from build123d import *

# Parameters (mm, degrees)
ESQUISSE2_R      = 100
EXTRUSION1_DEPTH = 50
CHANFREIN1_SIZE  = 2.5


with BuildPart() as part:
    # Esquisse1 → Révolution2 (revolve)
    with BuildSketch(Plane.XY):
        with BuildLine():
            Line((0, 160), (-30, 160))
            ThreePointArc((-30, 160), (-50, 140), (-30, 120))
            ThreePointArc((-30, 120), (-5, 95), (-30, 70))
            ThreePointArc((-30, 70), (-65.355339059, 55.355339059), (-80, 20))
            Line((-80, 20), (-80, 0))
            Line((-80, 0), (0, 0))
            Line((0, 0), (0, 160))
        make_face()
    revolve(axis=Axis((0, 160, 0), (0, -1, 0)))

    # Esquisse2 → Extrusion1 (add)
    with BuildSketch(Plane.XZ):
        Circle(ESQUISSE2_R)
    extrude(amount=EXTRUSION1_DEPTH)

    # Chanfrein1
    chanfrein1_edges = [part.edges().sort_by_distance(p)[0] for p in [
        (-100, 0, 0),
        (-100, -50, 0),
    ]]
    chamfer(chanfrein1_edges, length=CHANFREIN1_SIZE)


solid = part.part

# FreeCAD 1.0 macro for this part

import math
import FreeCAD as App
import Part
import Sketcher
from FreeCAD import Vector
Q = App.Units.Quantity


def edges_at(feature, points):
    """Names of the edges that pass closest to the given points."""
    edges = feature.Shape.Edges
    near = lambda p: min(range(len(edges)), key=lambda i: edges[i].distToShape(Part.Vertex(*p))[0])
    return sorted({f"Edge{near(p) + 1}" for p in points})

doc = App.newDocument("Part")
body = doc.addObject("PartDesign::Body", "Body")

sketch1 = body.newObject("Sketcher::SketchObject", "Sketch")
sketch1.AttachmentSupport = (doc.getObject("XY_Plane"), [""])
sketch1.MapMode = "FlatFace"
sketch1.addGeometry([
    Part.LineSegment(Vector(0, 160, 0), Vector(-30, 160, 0)),
    Part.ArcOfCircle(Part.Circle(Vector(-30, 140, 0), Vector(0, 0, 1), 20), math.radians(90), math.radians(270)),
    Part.ArcOfCircle(Part.Circle(Vector(-30, 95, 0), Vector(0, 0, 1), 25), math.radians(-90), math.radians(90)),
    Part.ArcOfCircle(Part.Circle(Vector(-30, 20, 0), Vector(0, 0, 1), 50), math.radians(90), math.radians(180)),
    Part.LineSegment(Vector(-80, 20, 0), Vector(-80, 0, 0)),
    Part.LineSegment(Vector(-80, 0, 0), Vector(0, 0, 0)),
    Part.LineSegment(Vector(0, 0, 0), Vector(0, 160, 0)),
], False)
sketch1.addConstraint([
    Sketcher.Constraint("Tangent", 0, 2, 1, 1),
    Sketcher.Constraint("Tangent", 1, 2, 2, 2),
    Sketcher.Constraint("Tangent", 2, 1, 3, 1),
    Sketcher.Constraint("Tangent", 3, 2, 4, 1),
    Sketcher.Constraint("Coincident", 4, 2, 5, 1),
    Sketcher.Constraint("Coincident", 5, 2, 6, 1),
    Sketcher.Constraint("Coincident", 6, 2, 0, 1),
    Sketcher.Constraint("Horizontal", 0),
    Sketcher.Constraint("Vertical", 4),
    Sketcher.Constraint("Horizontal", 5),
    Sketcher.Constraint("Vertical", 6),
    Sketcher.Constraint("Coincident", 5, 2, -1, 1),
    Sketcher.Constraint("Vertical", 1, 3, 2, 3),
    Sketcher.Constraint("Vertical", 2, 3, 3, 3),
    Sketcher.Constraint("Radius", 1, Q("20 mm")),
    Sketcher.Constraint("Radius", 2, Q("25 mm")),
    Sketcher.Constraint("Radius", 3, Q("50 mm")),
    Sketcher.Constraint("DistanceX", 0, 2, 0, 1, Q("30 mm")),
    Sketcher.Constraint("DistanceY", 4, 2, 4, 1, Q("20 mm")),
])
revolution = body.newObject("PartDesign::Revolution", "Revolution")
revolution.Profile = sketch1
revolution.ReferenceAxis = (sketch1, ["V_Axis"])
revolution.Angle = 360

sketch2 = body.newObject("Sketcher::SketchObject", "Sketch001")
sketch2.AttachmentSupport = (doc.getObject("XZ_Plane"), [""])
sketch2.MapMode = "FlatFace"
sketch2.addGeometry(Part.Circle(Vector(0, 0, 0), Vector(0, 0, 1), 100), False)
sketch2.addConstraint([
    Sketcher.Constraint("Coincident", 0, 3, -1, 1),
    Sketcher.Constraint("Diameter", 0, Q("200 mm")),
])
pad1 = body.newObject("PartDesign::Pad", "Pad")
pad1.Profile = sketch2
pad1.Length = 50
doc.recompute()

chamfer = body.newObject("PartDesign::Chamfer", "Chamfer")
chamfer.Base = (pad1, edges_at(pad1, [(-100, 0, 0), (-100, -50, 0)]))
chamfer.Size = 2.5

doc.recompute()
